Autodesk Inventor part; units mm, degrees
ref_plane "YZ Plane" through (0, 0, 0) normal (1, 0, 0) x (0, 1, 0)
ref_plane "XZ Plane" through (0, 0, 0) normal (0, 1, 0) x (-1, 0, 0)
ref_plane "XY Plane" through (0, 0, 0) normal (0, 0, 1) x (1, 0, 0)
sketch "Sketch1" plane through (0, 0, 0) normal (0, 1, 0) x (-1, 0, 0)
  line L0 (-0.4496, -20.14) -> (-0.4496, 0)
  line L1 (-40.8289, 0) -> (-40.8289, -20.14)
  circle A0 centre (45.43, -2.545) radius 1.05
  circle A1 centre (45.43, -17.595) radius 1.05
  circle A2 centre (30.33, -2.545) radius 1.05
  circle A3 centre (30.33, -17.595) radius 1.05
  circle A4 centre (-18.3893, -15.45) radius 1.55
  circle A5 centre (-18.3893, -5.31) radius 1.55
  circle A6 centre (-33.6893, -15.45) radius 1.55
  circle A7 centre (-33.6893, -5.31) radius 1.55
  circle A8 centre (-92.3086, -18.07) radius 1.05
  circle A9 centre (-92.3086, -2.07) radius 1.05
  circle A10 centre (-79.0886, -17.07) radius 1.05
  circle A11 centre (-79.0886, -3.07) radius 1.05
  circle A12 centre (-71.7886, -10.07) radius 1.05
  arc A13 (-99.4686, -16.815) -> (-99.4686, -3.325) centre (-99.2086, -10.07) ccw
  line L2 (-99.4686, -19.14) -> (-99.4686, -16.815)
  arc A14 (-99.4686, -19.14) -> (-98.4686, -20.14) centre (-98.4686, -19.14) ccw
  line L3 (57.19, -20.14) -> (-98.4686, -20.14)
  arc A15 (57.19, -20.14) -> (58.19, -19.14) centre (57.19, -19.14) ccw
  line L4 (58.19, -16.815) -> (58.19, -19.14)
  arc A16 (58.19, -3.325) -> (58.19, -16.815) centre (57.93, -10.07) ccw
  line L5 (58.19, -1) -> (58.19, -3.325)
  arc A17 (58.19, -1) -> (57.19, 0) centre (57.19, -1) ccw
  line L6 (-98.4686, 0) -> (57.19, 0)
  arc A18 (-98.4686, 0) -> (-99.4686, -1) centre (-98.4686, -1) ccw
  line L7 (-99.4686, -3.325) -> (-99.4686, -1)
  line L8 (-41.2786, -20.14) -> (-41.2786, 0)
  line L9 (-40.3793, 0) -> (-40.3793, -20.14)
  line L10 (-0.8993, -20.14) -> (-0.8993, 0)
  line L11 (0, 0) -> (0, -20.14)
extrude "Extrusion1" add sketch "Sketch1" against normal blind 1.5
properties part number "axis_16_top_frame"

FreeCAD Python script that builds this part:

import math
import FreeCAD as App
import Part
import Sketcher

V = App.Vector
Q = App.Units.Quantity

doc = App.newDocument("Part")
body = doc.addObject("PartDesign::Body", "Body")

sketch1 = body.newObject("Sketcher::SketchObject", "Sketch")
sketch1.AttachmentSupport = (doc.getObject("XZ_Plane"), [""])
sketch1.MapMode = "FlatFace"
sketch1.addGeometry(Part.ArcOfCircle(Part.Circle(V(-57.19, -19.14, 0), V(0, 0, 1), 1), math.radians(180), math.radians(270)), False)
sketch1.addGeometry(Part.LineSegment(V(-58.19, -19.14, 0), V(-58.19, -16.815, 0)), False)
sketch1.addGeometry(Part.ArcOfCircle(Part.Circle(V(-57.93, -10.07, 0), V(0, 0, 1), 6.750009), math.radians(-92.207492), math.radians(92.207492)), False)
sketch1.addGeometry(Part.LineSegment(V(-58.19, -3.325, 0), V(-58.19, -1, 0)), False)
sketch1.addGeometry(Part.ArcOfCircle(Part.Circle(V(-57.19, -1, 0), V(0, 0, 1), 1), math.radians(90), math.radians(180)), False)
sketch1.addGeometry(Part.LineSegment(V(-57.19, 0, 0), V(98.4686, 0, 0)), False)
sketch1.addGeometry(Part.ArcOfCircle(Part.Circle(V(98.4686, -1, 0), V(0, 0, 1), 1), math.radians(0), math.radians(90)), False)
sketch1.addGeometry(Part.LineSegment(V(99.4686, -1, 0), V(99.4686, -3.325, 0)), False)
sketch1.addGeometry(Part.ArcOfCircle(Part.Circle(V(99.2086, -10.07, 0), V(0, 0, 1), 6.750009), math.radians(87.792508), math.radians(272.207492)), False)
sketch1.addGeometry(Part.LineSegment(V(99.4686, -16.815, 0), V(99.4686, -19.14, 0)), False)
sketch1.addGeometry(Part.ArcOfCircle(Part.Circle(V(98.4686, -19.14, 0), V(0, 0, 1), 1), math.radians(-90), math.radians(0)), False)
sketch1.addGeometry(Part.LineSegment(V(98.4686, -20.14, 0), V(-57.19, -20.14, 0)), False)
sketch1.addGeometry(Part.Circle(V(18.3893, -5.31, 0), V(0, 0, 1), 1.55), False)
sketch1.addGeometry(Part.Circle(V(33.6893, -15.45, 0), V(0, 0, 1), 1.55), False)
sketch1.addGeometry(Part.Circle(V(18.3893, -15.45, 0), V(0, 0, 1), 1.55), False)
sketch1.addGeometry(Part.Circle(V(33.6893, -5.31, 0), V(0, 0, 1), 1.55), False)
sketch1.addGeometry(Part.Circle(V(-45.43, -2.545, 0), V(0, 0, 1), 1.05), False)
sketch1.addGeometry(Part.Circle(V(-30.33, -17.595, 0), V(0, 0, 1), 1.05), False)
sketch1.addGeometry(Part.Circle(V(-45.43, -17.595, 0), V(0, 0, 1), 1.05), False)
sketch1.addGeometry(Part.Circle(V(-30.33, -2.545, 0), V(0, 0, 1), 1.05), False)
sketch1.addGeometry(Part.Circle(V(92.3086, -2.07, 0), V(0, 0, 1), 1.05), False)
sketch1.addGeometry(Part.Circle(V(92.3086, -18.07, 0), V(0, 0, 1), 1.05), False)
sketch1.addGeometry(Part.Circle(V(79.0886, -17.07, 0), V(0, 0, 1), 1.05), False)
sketch1.addGeometry(Part.Circle(V(71.7886, -10.07, 0), V(0, 0, 1), 1.05), False)
sketch1.addGeometry(Part.Circle(V(79.0886, -3.07, 0), V(0, 0, 1), 1.05), False)
sketch1.addConstraint(Sketcher.Constraint("Tangent", 0, 1, 1, 1))
sketch1.addConstraint(Sketcher.Constraint("Coincident", 1, 2, 2, 1))
sketch1.addConstraint(Sketcher.Constraint("Coincident", 2, 2, 3, 1))
sketch1.addConstraint(Sketcher.Constraint("Tangent", 3, 2, 4, 2))
sketch1.addConstraint(Sketcher.Constraint("Tangent", 4, 1, 5, 1))
sketch1.addConstraint(Sketcher.Constraint("Tangent", 5, 2, 6, 2))
sketch1.addConstraint(Sketcher.Constraint("Tangent", 6, 1, 7, 1))
sketch1.addConstraint(Sketcher.Constraint("Coincident", 7, 2, 8, 1))
sketch1.addConstraint(Sketcher.Constraint("Coincident", 8, 2, 9, 1))
sketch1.addConstraint(Sketcher.Constraint("Tangent", 9, 2, 10, 2))
sketch1.addConstraint(Sketcher.Constraint("Tangent", 10, 1, 11, 1))
sketch1.addConstraint(Sketcher.Constraint("Tangent", 11, 2, 0, 2))
sketch1.addConstraint(Sketcher.Constraint("Vertical", 1))
sketch1.addConstraint(Sketcher.Constraint("Vertical", 3))
sketch1.addConstraint(Sketcher.Constraint("Horizontal", 5))
sketch1.addConstraint(Sketcher.Constraint("Vertical", 7))
sketch1.addConstraint(Sketcher.Constraint("Vertical", 9))
sketch1.addConstraint(Sketcher.Constraint("Horizontal", 11))
sketch1.addConstraint(Sketcher.Constraint("Equal", 0, 4))
sketch1.addConstraint(Sketcher.Constraint("Equal", 4, 6))
sketch1.addConstraint(Sketcher.Constraint("Equal", 2, 8))
sketch1.addConstraint(Sketcher.Constraint("Equal", 6, 10))
sketch1.addConstraint(Sketcher.Constraint("Equal", 12, 13))
sketch1.addConstraint(Sketcher.Constraint("Equal", 13, 14))
sketch1.addConstraint(Sketcher.Constraint("Equal", 14, 15))
sketch1.addConstraint(Sketcher.Constraint("Equal", 16, 17))
sketch1.addConstraint(Sketcher.Constraint("Equal", 17, 18))
sketch1.addConstraint(Sketcher.Constraint("Equal", 18, 19))
sketch1.addConstraint(Sketcher.Constraint("Equal", 19, 20))
sketch1.addConstraint(Sketcher.Constraint("Equal", 20, 21))
sketch1.addConstraint(Sketcher.Constraint("Equal", 21, 22))
sketch1.addConstraint(Sketcher.Constraint("Equal", 22, 23))
sketch1.addConstraint(Sketcher.Constraint("Equal", 23, 24))
sketch1.addConstraint(Sketcher.Constraint("PointOnObject", 4, 1, -1))
sketch1.addConstraint(Sketcher.Constraint("Horizontal", 2, 3, 8, 3))
sketch1.addConstraint(Sketcher.Constraint("Horizontal", 13, 3, 14, 3))
sketch1.addConstraint(Sketcher.Constraint("Horizontal", 12, 3, 15, 3))
sketch1.addConstraint(Sketcher.Constraint("Horizontal", 17, 3, 18, 3))
sketch1.addConstraint(Sketcher.Constraint("Horizontal", 16, 3, 19, 3))
sketch1.addConstraint(Sketcher.Constraint("Horizontal", 8, 3, 23, 3))
sketch1.addConstraint(Sketcher.Constraint("Horizontal", 2, 2, 7, 2))
sketch1.addConstraint(Sketcher.Constraint("Horizontal", 1, 2, 8, 2))
sketch1.addConstraint(Sketcher.Constraint("Vertical", 0, 3, 4, 3))
sketch1.addConstraint(Sketcher.Constraint("Vertical", 12, 3, 14, 3))
sketch1.addConstraint(Sketcher.Constraint("Vertical", 13, 3, 15, 3))
sketch1.addConstraint(Sketcher.Constraint("Vertical", 16, 3, 18, 3))
sketch1.addConstraint(Sketcher.Constraint("Vertical", 17, 3, 19, 3))
sketch1.addConstraint(Sketcher.Constraint("Vertical", 20, 3, 21, 3))
sketch1.addConstraint(Sketcher.Constraint("Vertical", 22, 3, 24, 3))
sketch1.addConstraint(Sketcher.Constraint("Equal", 1, 3))
sketch1.addConstraint(Sketcher.Constraint("Radius", 0, Q("1 mm")))
sketch1.addConstraint(Sketcher.Constraint("Diameter", 12, Q("3.1 mm")))
sketch1.addConstraint(Sketcher.Constraint("Diameter", 16, Q("2.1 mm")))
sketch1.addConstraint(Sketcher.Constraint("Radius", 2, Q("6.75 mm")))
sketch1.addConstraint(Sketcher.Constraint("DistanceY", 8, 3, 20, 3, Q("8 mm")))
sketch1.addConstraint(Sketcher.Constraint("DistanceY", 21, 3, 8, 3, Q("8 mm")))
sketch1.addConstraint(Sketcher.Constraint("DistanceY", 21, 3, 22, 3, Q("1 mm")))
sketch1.addConstraint(Sketcher.Constraint("DistanceY", 23, 3, 24, 3, Q("7 mm")))
sketch1.addConstraint(Sketcher.Constraint("DistanceX", 12, 3, 13, 3, Q("15.3 mm")))
sketch1.addConstraint(Sketcher.Constraint("DistanceX", 2, 3, 16, 3, Q("12.5 mm")))
sketch1.addConstraint(Sketcher.Constraint("DistanceX", 16, 3, 17, 3, Q("15.1 mm")))
sketch1.addConstraint(Sketcher.Constraint("DistanceX", 20, 3, 8, 3, Q("6.9 mm")))
sketch1.addConstraint(Sketcher.Constraint("DistanceX", 23, 3, 22, 3, Q("7.3 mm")))
sketch1.addConstraint(Sketcher.Constraint("DistanceY", 1, 1, 1, 2, Q("2.325 mm")))
sketch1.addConstraint(Sketcher.Constraint("DistanceX", 0, 3, -1, 1, Q("57.19 mm")))
sketch1.addConstraint(Sketcher.Constraint("DistanceY", 0, 3, -1, 1, Q("19.14 mm")))
sketch1.addConstraint(Sketcher.Constraint("DistanceY", 12, 3, -1, 1, Q("5.31 mm")))
sketch1.addConstraint(Sketcher.Constraint("DistanceY", 13, 3, -1, 1, Q("15.45 mm")))
sketch1.addConstraint(Sketcher.Constraint("DistanceY", 17, 3, 16, 3, Q("15.05 mm")))
sketch1.addConstraint(Sketcher.Constraint("DistanceX", 22, 3, 21, 3, Q("13.22 mm")))
sketch1.addConstraint(Sketcher.Constraint("DistanceY", 18, 3, 1, 2, Q("0.78 mm")))
sketch1.addConstraint(Sketcher.Constraint("DistanceX", 5, 1, 5, 2, Q("155.6586 mm")))
sketch1.addConstraint(Sketcher.Constraint("DistanceX", -1, 1, 12, 3, Q("18.3893 mm")))
pad1 = body.newObject("PartDesign::Pad", "Pad")
pad1.Profile = sketch1
pad1.Length = 1.5

doc.recompute()
